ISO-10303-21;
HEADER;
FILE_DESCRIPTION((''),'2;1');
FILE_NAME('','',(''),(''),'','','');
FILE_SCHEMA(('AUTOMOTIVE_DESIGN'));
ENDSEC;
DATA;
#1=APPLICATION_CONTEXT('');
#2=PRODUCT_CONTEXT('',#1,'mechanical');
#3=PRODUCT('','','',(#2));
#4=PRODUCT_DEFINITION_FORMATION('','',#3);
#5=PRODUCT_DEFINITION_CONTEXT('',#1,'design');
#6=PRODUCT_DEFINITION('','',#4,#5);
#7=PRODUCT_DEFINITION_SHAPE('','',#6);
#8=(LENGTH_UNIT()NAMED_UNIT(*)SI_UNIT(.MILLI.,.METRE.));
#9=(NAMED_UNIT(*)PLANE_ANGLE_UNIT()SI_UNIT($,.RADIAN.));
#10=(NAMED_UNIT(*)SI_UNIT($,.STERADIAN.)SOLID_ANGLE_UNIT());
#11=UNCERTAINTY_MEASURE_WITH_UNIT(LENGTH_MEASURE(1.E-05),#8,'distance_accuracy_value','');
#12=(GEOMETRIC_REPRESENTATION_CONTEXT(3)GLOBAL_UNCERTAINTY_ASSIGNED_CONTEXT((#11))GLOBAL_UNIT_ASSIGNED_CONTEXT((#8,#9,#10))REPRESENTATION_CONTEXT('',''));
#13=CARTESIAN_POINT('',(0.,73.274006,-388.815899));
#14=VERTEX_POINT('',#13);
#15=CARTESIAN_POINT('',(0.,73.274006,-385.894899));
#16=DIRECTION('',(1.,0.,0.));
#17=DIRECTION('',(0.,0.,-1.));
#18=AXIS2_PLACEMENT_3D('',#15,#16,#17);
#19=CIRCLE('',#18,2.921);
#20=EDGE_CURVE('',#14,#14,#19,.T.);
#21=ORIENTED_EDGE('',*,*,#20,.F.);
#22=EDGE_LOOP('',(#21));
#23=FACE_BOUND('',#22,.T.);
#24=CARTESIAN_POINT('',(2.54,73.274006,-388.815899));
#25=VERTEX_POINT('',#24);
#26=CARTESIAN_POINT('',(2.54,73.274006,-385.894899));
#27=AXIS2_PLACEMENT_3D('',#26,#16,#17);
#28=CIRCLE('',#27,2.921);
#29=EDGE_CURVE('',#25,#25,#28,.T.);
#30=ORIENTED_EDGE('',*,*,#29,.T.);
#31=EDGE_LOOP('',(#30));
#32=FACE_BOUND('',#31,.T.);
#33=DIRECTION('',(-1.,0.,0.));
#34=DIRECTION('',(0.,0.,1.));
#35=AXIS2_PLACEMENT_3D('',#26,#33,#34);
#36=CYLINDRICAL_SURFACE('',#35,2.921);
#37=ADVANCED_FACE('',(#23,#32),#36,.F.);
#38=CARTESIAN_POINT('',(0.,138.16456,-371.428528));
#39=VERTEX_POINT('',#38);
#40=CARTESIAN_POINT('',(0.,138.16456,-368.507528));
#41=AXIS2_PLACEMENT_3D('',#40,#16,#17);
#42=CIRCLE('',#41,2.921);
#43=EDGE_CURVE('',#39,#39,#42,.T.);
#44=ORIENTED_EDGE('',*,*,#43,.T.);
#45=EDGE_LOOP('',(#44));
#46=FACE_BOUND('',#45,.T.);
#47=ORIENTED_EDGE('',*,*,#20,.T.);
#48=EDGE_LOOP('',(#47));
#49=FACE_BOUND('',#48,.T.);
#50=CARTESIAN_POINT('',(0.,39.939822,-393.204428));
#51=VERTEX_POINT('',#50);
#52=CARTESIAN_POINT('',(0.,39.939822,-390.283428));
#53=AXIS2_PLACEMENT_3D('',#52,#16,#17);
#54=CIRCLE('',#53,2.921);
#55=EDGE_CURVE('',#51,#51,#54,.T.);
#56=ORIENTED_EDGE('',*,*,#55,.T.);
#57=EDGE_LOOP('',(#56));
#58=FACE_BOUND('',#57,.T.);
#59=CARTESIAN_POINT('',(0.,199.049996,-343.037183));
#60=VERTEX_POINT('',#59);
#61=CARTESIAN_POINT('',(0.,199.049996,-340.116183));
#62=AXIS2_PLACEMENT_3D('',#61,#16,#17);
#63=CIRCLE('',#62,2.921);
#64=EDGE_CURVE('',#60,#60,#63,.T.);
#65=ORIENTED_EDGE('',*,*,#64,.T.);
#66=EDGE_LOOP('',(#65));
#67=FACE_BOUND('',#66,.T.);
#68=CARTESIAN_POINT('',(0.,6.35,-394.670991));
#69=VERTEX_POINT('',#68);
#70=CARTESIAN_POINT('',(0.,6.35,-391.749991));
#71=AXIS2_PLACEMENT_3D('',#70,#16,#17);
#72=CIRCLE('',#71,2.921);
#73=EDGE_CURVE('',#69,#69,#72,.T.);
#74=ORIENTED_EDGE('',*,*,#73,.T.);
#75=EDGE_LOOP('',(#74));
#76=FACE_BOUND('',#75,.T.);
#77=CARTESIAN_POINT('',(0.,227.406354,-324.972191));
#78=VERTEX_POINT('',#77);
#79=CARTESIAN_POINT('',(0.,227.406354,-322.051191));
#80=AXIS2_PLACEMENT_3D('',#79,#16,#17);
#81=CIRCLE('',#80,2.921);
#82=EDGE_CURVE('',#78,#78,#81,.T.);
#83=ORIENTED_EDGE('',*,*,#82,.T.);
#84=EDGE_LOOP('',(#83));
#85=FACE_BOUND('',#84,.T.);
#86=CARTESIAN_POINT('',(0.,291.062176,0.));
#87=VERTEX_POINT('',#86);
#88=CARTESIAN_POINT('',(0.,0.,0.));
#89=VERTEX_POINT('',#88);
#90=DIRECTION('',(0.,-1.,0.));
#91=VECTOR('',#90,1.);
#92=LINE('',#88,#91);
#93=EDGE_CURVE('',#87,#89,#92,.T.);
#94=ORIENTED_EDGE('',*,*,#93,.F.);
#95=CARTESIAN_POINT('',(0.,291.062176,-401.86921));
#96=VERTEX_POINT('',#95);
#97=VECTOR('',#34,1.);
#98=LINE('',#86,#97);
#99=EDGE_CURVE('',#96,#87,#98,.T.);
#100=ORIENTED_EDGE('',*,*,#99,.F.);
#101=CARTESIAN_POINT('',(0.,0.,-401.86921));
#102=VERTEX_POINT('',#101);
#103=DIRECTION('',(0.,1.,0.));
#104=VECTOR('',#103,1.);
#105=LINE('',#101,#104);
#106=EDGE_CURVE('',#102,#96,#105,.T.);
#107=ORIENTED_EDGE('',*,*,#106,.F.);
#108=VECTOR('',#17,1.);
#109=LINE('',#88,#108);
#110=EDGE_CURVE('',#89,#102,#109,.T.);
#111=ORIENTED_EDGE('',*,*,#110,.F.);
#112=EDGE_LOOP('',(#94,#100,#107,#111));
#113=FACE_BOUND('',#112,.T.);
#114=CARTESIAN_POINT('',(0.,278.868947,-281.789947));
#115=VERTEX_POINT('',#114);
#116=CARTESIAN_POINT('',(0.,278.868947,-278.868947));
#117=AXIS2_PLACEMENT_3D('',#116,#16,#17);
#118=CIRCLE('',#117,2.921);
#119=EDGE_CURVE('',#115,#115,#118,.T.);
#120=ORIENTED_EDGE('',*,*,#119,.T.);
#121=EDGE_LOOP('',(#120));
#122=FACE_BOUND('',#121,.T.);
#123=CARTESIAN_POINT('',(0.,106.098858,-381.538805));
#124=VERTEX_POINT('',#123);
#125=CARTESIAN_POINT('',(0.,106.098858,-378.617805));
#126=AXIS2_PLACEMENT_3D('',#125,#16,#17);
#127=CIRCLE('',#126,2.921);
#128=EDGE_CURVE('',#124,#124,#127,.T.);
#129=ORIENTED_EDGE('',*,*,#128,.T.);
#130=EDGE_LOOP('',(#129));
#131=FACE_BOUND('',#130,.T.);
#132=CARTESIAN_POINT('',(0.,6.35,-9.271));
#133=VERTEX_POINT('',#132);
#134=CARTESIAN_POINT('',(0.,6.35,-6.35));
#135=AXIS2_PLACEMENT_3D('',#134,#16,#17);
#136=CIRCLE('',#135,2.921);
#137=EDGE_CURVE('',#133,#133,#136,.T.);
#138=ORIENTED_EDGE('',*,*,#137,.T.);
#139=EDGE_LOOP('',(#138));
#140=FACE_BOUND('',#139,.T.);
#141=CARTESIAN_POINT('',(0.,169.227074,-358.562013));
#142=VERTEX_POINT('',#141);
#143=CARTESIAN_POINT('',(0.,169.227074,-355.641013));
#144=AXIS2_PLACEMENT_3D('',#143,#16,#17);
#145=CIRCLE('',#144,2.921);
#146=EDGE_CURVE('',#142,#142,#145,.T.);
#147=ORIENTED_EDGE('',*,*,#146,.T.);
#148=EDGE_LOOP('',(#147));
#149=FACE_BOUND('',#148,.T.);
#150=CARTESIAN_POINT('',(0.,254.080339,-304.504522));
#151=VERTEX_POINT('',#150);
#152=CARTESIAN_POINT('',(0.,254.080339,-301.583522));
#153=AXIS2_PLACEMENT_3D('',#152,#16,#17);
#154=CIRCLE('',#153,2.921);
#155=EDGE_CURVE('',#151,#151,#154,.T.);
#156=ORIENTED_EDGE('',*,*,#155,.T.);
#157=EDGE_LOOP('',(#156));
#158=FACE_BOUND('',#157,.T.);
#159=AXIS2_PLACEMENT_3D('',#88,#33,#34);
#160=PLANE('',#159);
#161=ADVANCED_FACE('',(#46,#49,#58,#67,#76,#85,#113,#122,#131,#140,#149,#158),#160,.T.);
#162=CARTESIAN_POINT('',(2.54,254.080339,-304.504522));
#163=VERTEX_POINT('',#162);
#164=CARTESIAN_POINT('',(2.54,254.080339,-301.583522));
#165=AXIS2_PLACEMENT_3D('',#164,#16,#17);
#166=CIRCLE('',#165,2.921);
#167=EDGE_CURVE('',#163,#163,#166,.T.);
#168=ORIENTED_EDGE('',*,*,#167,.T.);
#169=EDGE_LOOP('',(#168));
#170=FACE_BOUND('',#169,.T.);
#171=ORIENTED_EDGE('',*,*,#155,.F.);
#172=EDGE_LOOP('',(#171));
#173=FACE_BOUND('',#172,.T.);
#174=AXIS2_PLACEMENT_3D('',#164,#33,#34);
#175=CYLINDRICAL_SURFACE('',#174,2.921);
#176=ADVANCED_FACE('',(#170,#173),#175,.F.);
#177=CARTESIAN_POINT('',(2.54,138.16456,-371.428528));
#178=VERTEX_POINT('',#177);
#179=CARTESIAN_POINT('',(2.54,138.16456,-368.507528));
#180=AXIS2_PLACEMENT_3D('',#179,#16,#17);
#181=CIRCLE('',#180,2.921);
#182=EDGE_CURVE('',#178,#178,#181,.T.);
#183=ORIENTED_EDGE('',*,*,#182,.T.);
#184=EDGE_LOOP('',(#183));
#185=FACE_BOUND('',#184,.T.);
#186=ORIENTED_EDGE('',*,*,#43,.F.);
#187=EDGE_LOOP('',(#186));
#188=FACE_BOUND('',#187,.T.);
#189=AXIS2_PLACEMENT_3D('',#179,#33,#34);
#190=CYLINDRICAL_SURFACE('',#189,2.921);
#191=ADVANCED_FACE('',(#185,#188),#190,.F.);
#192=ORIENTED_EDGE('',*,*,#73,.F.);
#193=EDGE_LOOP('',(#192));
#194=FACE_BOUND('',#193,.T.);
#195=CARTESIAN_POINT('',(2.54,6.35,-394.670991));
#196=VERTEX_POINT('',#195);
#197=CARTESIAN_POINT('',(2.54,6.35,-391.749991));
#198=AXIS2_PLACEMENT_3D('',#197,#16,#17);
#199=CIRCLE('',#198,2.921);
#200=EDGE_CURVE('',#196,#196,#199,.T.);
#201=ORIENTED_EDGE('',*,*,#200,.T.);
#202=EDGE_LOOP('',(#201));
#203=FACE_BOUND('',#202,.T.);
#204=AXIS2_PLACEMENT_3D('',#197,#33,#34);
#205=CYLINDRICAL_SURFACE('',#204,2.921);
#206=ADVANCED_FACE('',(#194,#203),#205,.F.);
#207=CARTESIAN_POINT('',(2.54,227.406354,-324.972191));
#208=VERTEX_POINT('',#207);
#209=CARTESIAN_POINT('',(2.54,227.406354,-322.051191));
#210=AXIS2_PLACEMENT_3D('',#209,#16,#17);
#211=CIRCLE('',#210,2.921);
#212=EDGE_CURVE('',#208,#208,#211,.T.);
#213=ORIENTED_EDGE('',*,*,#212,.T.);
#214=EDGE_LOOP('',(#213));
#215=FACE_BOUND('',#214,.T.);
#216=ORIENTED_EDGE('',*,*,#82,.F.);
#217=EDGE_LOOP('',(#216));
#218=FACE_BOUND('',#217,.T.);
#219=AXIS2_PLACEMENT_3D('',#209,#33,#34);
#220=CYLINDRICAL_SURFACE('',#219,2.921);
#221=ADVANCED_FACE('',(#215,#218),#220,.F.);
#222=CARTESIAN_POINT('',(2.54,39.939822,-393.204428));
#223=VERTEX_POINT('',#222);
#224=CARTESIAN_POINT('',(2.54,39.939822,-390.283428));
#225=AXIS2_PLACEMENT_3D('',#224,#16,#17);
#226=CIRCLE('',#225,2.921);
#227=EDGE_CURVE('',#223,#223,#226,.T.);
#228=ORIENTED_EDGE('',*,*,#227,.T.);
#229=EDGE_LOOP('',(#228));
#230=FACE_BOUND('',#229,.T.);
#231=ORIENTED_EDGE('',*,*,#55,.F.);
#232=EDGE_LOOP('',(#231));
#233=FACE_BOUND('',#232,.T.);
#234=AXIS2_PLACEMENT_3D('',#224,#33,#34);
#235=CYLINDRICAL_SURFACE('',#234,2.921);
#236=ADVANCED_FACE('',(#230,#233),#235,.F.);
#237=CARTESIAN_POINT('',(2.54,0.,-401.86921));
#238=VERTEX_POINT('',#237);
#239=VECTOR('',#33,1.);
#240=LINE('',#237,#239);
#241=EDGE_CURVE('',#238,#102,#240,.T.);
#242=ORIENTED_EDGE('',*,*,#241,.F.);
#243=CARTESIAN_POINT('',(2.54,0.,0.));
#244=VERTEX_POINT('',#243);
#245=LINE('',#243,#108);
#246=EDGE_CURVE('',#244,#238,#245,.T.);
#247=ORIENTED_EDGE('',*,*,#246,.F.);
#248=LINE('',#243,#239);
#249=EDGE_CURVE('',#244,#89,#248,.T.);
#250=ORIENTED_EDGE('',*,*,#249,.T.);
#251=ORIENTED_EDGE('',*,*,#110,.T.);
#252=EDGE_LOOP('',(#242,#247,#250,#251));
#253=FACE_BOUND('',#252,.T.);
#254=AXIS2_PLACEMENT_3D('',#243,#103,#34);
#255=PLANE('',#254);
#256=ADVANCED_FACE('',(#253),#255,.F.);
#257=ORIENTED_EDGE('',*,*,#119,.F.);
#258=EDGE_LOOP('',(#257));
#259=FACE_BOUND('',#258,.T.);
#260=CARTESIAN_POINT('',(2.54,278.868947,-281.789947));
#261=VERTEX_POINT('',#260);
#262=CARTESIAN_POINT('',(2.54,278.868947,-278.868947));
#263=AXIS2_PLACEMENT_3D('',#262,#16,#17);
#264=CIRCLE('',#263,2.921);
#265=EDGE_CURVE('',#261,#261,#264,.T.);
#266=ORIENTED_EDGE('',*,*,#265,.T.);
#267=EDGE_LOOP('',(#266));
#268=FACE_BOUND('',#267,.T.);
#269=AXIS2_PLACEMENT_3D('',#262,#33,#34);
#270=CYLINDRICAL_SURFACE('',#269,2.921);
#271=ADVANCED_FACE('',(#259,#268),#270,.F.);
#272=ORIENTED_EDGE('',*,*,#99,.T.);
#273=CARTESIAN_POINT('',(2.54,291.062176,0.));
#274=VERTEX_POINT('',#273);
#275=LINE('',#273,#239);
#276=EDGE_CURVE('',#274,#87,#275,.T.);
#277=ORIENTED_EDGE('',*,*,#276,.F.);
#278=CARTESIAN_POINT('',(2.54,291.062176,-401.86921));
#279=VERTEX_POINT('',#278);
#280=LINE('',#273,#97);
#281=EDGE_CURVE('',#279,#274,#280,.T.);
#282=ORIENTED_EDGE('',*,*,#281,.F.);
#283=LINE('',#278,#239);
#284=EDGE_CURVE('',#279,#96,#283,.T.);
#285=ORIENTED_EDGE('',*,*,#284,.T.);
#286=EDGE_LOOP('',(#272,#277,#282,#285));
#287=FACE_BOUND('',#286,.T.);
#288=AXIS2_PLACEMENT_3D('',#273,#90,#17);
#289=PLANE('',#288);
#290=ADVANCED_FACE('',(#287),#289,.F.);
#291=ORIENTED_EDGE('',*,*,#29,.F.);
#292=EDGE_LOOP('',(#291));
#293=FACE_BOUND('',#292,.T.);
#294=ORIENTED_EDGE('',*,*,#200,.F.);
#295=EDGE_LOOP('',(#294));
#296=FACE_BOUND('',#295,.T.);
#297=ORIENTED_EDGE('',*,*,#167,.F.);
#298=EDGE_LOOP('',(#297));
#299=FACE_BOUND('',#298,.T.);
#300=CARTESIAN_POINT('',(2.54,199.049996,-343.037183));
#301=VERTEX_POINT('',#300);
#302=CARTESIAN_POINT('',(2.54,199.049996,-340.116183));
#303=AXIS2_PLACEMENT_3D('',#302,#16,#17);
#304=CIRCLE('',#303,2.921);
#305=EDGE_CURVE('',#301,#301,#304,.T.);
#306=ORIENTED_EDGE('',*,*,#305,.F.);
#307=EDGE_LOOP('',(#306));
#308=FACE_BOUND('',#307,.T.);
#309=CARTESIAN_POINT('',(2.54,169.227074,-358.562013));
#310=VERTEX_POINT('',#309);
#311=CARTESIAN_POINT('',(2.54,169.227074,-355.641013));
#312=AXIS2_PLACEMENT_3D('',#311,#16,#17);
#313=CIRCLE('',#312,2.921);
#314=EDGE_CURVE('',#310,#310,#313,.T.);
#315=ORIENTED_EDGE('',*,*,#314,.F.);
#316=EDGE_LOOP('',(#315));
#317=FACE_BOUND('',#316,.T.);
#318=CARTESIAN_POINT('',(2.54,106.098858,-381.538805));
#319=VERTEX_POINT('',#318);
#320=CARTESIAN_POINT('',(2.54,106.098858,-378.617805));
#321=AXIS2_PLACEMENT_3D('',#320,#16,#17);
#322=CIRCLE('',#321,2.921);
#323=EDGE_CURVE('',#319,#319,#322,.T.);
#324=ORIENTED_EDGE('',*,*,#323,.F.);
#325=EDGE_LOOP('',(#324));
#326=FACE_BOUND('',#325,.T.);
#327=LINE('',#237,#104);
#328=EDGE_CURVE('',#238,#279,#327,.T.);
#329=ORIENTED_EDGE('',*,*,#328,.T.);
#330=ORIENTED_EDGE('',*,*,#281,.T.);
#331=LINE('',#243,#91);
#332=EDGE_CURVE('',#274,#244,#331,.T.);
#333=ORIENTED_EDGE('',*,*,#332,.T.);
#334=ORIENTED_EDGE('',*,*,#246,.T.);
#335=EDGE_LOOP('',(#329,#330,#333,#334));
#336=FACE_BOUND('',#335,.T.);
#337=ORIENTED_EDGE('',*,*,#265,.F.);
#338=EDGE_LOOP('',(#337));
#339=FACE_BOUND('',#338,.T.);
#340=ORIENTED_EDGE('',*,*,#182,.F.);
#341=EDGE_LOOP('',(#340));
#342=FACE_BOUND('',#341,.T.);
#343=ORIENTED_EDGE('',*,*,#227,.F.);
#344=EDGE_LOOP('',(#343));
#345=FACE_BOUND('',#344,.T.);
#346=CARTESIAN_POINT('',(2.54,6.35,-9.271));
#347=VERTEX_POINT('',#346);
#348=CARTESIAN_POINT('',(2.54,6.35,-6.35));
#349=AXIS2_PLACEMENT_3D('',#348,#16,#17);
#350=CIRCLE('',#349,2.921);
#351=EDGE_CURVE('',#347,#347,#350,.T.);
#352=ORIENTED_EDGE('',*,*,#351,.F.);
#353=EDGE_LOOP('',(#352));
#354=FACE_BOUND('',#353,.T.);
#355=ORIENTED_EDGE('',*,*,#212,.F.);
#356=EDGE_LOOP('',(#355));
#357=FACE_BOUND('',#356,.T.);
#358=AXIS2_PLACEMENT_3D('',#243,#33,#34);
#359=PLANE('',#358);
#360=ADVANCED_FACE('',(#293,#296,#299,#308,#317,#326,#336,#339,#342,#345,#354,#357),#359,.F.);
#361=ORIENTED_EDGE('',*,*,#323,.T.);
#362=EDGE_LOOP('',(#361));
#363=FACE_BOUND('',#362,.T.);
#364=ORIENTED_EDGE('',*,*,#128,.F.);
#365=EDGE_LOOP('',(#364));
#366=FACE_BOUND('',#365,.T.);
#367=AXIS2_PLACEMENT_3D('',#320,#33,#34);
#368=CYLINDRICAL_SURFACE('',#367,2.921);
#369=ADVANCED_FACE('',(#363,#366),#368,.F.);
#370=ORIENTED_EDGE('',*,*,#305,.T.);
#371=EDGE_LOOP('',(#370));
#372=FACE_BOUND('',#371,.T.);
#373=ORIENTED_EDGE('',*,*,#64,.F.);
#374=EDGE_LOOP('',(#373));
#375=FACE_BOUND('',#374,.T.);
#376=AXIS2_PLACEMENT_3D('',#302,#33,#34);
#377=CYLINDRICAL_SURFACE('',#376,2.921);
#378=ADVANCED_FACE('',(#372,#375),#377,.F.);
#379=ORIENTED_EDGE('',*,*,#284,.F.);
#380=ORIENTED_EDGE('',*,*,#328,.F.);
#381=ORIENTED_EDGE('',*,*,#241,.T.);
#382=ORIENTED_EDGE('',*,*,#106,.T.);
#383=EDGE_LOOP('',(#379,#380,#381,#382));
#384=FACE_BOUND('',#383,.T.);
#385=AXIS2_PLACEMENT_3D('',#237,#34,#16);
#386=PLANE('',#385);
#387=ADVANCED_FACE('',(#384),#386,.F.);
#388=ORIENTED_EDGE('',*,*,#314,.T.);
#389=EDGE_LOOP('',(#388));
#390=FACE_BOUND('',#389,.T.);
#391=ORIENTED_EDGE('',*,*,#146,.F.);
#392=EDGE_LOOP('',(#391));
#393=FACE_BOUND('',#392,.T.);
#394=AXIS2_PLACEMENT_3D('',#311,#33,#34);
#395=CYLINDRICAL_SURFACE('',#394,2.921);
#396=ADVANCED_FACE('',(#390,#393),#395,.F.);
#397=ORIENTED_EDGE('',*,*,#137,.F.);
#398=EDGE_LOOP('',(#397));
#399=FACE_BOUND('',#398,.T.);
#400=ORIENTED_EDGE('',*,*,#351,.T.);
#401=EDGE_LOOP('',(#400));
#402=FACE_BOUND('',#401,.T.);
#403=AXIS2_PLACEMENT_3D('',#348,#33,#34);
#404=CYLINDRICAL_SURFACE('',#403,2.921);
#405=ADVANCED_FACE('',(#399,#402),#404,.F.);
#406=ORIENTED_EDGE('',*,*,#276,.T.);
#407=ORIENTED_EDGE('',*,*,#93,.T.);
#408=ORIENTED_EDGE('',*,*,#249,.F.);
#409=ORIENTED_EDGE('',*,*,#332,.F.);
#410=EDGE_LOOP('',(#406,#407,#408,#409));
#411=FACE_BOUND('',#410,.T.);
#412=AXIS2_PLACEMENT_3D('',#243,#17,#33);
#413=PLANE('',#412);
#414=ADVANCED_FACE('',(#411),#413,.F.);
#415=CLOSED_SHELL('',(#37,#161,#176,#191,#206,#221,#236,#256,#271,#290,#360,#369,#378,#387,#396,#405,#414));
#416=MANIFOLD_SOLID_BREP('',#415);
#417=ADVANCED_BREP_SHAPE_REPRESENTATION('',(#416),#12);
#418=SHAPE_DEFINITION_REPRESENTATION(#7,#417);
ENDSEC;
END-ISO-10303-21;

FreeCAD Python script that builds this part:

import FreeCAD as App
import Part
import Sketcher
Q = App.Units.Quantity


def add_polygon(sketch, points):
    """Adds a closed chain of lines whose ends are joined by coincident constraints."""
    first, n = sketch.GeometryCount, len(points)
    for a, b in zip(points, points[1:] + points[:1]):
        sketch.addGeometry(Part.LineSegment(App.Vector(*a, 0), App.Vector(*b, 0)), False)
    for i in range(n):
        sketch.addConstraint(Sketcher.Constraint("Coincident", first + i, 2, first + (i + 1) % n, 1))

doc = App.newDocument("Part")
body = doc.addObject("PartDesign::Body", "Body")

sketch1 = body.newObject("Sketcher::SketchObject", "Sketch")
sketch1.AttachmentSupport = (doc.getObject("YZ_Plane"), [""])
sketch1.MapMode = "FlatFace"
add_polygon(sketch1, [(291.1, 0), (0, 0), (0, -401.9), (291.1, -401.9)])
sketch1.addGeometry(Part.Circle(App.Vector(6.3, -6.3, 0), App.Vector(0, 0, 1), 2.9), False)
sketch1.addGeometry(Part.Circle(App.Vector(6.3, -391.7, 0), App.Vector(0, 0, 1), 2.9), False)
sketch1.addGeometry(Part.Circle(App.Vector(39.9, -390.3, 0), App.Vector(0, 0, 1), 2.9), False)
sketch1.addGeometry(Part.Circle(App.Vector(73.3, -385.9, 0), App.Vector(0, 0, 1), 2.9), False)
sketch1.addGeometry(Part.Circle(App.Vector(106.1, -378.6, 0), App.Vector(0, 0, 1), 2.9), False)
sketch1.addGeometry(Part.Circle(App.Vector(138.2, -368.5, 0), App.Vector(0, 0, 1), 2.9), False)
sketch1.addGeometry(Part.Circle(App.Vector(169.2, -355.6, 0), App.Vector(0, 0, 1), 2.9), False)
sketch1.addGeometry(Part.Circle(App.Vector(199, -340.1, 0), App.Vector(0, 0, 1), 2.9), False)
sketch1.addGeometry(Part.Circle(App.Vector(278.9, -278.9, 0), App.Vector(0, 0, 1), 2.9), False)
sketch1.addGeometry(Part.Circle(App.Vector(227.4, -322.1, 0), App.Vector(0, 0, 1), 2.9), False)
sketch1.addGeometry(Part.Circle(App.Vector(254.1, -301.6, 0), App.Vector(0, 0, 1), 2.9), False)
sketch1.addConstraint([
    Sketcher.Constraint("Horizontal", 0),
    Sketcher.Constraint("Vertical", 1),
    Sketcher.Constraint("Horizontal", 2),
    Sketcher.Constraint("Vertical", 3),
    Sketcher.Constraint("Coincident", 0, 2, -1, 1),
    Sketcher.Constraint("Equal", 4, 5),
    Sketcher.Constraint("Equal", 5, 6),
    Sketcher.Constraint("Equal", 6, 7),
    Sketcher.Constraint("Equal", 7, 8),
    Sketcher.Constraint("Equal", 8, 9),
    Sketcher.Constraint("Equal", 9, 10),
    Sketcher.Constraint("Equal", 10, 11),
    Sketcher.Constraint("Equal", 11, 12),
    Sketcher.Constraint("Equal", 12, 13),
    Sketcher.Constraint("Equal", 13, 14),
    Sketcher.Constraint("Vertical", 4, 3, 5, 3),
    Sketcher.Constraint("Diameter", 4, Q("0.23 in")),
    Sketcher.Constraint("DistanceX", -1, 1, 4, 3, Q("0.25 in")),
    Sketcher.Constraint("DistanceY", 4, 3, -1, 1, Q("0.25 in")),
    Sketcher.Constraint("DistanceY", 1, 2, 1, 1, Q("401.86921 mm")),
    Sketcher.Constraint("DistanceY", 7, 3, -1, 1, Q("385.894899 mm")),
    Sketcher.Constraint("DistanceY", 6, 3, 9, 3, Q("21.7759 mm")),
    Sketcher.Constraint("DistanceX", 10, 3, 2, 2, Q("121.835101 mm")),
    Sketcher.Constraint("DistanceX", 0, 2, 0, 1, Q("291.062176 mm")),
    Sketcher.Constraint("DistanceY", 5, 3, -1, 1, Q("391.749991 mm")),
    Sketcher.Constraint("DistanceX", -1, 1, 9, 3, Q("138.16456 mm")),
    Sketcher.Constraint("DistanceY", 13, 3, -1, 1, Q("322.051191 mm")),
    Sketcher.Constraint("DistanceX", -1, 1, 14, 3, Q("254.080339 mm")),
    Sketcher.Constraint("DistanceY", 14, 3, -1, 1, Q("301.583522 mm")),
    Sketcher.Constraint("DistanceY", 6, 3, 7, 3, Q("4.388529 mm")),
    Sketcher.Constraint("DistanceX", 7, 3, 8, 3, Q("32.824852 mm")),
    Sketcher.Constraint("DistanceY", 8, 3, 10, 3, Q("22.976792 mm")),
    Sketcher.Constraint("DistanceX", 7, 3, 10, 3, Q("95.953068 mm")),
    Sketcher.Constraint("DistanceX", 6, 3, 10, 3, Q("129.287252 mm")),
    Sketcher.Constraint("DistanceY", 5, 3, 10, 3, Q("36.108978 mm")),
    Sketcher.Constraint("DistanceX", 10, 3, 11, 3, Q("29.822921 mm")),
    Sketcher.Constraint("DistanceY", 10, 3, 11, 3, Q("15.52483 mm")),
    Sketcher.Constraint("DistanceX", 11, 3, 12, 3, Q("79.818952 mm")),
    Sketcher.Constraint("DistanceY", 9, 3, 12, 3, Q("89.638581 mm")),
    Sketcher.Constraint("DistanceX", 10, 3, 13, 3, Q("58.179279 mm")),
])
pad1 = body.newObject("PartDesign::Pad", "Pad")
pad1.Profile = sketch1
pad1.Length = Q("0.1 in")

doc.recompute()
